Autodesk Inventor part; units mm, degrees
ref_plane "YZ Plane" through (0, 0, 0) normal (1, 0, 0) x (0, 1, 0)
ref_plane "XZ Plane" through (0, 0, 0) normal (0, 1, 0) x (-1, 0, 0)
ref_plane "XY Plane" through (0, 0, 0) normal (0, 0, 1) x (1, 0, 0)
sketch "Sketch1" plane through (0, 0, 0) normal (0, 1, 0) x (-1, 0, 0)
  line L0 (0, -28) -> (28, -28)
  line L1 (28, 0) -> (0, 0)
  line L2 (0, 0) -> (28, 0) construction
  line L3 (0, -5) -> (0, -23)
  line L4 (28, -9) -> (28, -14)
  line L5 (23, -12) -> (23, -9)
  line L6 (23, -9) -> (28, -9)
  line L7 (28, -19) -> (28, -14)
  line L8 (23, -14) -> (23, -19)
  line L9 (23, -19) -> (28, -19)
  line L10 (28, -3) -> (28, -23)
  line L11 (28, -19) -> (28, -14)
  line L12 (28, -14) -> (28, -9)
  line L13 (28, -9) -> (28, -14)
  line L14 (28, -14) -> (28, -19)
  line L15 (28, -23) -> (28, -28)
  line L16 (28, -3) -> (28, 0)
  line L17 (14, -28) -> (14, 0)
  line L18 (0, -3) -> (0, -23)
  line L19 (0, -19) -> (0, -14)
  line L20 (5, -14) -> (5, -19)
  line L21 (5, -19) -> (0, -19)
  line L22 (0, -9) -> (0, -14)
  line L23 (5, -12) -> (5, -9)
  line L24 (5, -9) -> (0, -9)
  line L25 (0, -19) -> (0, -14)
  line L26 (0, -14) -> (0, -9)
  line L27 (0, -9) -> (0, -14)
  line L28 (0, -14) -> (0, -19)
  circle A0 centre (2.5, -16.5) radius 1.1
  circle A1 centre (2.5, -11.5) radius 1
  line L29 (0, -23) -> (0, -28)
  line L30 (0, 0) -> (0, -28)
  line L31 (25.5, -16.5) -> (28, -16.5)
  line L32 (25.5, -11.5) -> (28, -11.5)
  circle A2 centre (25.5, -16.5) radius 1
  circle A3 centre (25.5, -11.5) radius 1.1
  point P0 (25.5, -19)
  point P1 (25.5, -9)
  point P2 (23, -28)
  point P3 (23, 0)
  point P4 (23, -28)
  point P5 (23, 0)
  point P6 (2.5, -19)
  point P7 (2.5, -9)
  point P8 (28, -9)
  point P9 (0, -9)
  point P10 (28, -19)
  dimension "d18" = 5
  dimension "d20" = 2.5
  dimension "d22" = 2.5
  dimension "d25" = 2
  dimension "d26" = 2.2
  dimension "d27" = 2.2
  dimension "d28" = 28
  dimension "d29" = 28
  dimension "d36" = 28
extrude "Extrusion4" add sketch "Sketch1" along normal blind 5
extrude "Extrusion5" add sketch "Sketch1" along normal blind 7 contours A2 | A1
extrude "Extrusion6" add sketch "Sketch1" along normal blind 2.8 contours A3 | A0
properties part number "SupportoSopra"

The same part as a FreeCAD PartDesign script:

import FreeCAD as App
import Part
import Sketcher
from FreeCAD import Vector

doc = App.newDocument("Part")
body = doc.addObject("PartDesign::Body", "Body")

# Sketch on XZ plane
sketch1 = body.newObject("Sketcher::SketchObject", "Sketch")
sketch1.AttachmentSupport = (doc.getObject("XZ_Plane"), [""])
sketch1.MapMode = "FlatFace"
sketch1.addGeometry([
    Part.LineSegment(Vector(0, -28, 0), Vector(-28, -28, 0)),  # 0
    Part.LineSegment(Vector(-28, -28, 0), Vector(-28, -16.5, 0)),  # 1
    Part.LineSegment(Vector(-28, -16.5, 0), Vector(-28, -11.5, 0)),  # 2
    Part.LineSegment(Vector(-28, -11.5, 0), Vector(-28, 0, 0)),  # 3
    Part.LineSegment(Vector(-28, 0, 0), Vector(0, 0, 0)),  # 4
    Part.LineSegment(Vector(0, 0, 0), Vector(0, -28, 0)),  # 5
    Part.Circle(Vector(-2.5, -16.5, 0), Vector(0, 0, 1), 1.1),  # 6
    Part.Circle(Vector(-2.5, -11.5, 0), Vector(0, 0, 1), 1),  # 7
    Part.Circle(Vector(-25.5, -16.5, 0), Vector(0, 0, 1), 1),  # 8
    Part.Circle(Vector(-25.5, -11.5, 0), Vector(0, 0, 1), 1.1),  # 9
], False)
sketch1.addConstraint([
    Sketcher.Constraint("Coincident", 0, 2, 1, 1),
    Sketcher.Constraint("Coincident", 1, 2, 2, 1),
    Sketcher.Constraint("Coincident", 2, 2, 3, 1),
    Sketcher.Constraint("Coincident", 3, 2, 4, 1),
    Sketcher.Constraint("Coincident", 4, 2, 5, 1),
    Sketcher.Constraint("Coincident", 5, 2, 0, 1),
    Sketcher.Constraint("Horizontal", 0),
    Sketcher.Constraint("Vertical", 1),
    Sketcher.Constraint("Vertical", 2),
    Sketcher.Constraint("Vertical", 3),
    Sketcher.Constraint("Horizontal", 4),
    Sketcher.Constraint("Vertical", 5),
    Sketcher.Constraint("Coincident", 4, 2, -1, 1),
    Sketcher.Constraint("Equal", 7, 8),
    Sketcher.Constraint("Equal", 6, 9),
    Sketcher.Constraint("Horizontal", 6, 3, 8, 3),
    Sketcher.Constraint("Horizontal", 7, 3, 9, 3),
    Sketcher.Constraint("Horizontal", 8, 3, 1, 2),
    Sketcher.Constraint("Horizontal", 9, 3, 2, 2),
    Sketcher.Constraint("Vertical", 6, 3, 7, 3),
    Sketcher.Constraint("Vertical", 8, 3, 9, 3),
    Sketcher.Constraint("Equal", 1, 3),
    Sketcher.Constraint("Equal", 4, 5),
    Sketcher.Constraint("Diameter", 7, 2.0),
    Sketcher.Constraint("Diameter", 6, 2.2),
    Sketcher.Constraint("DistanceX", 0, 2, 0, 1, 28.0),
    Sketcher.Constraint("DistanceY", 2, 1, 2, 2, 5.0),
    Sketcher.Constraint("DistanceX", 6, 3, -1, 1, 2.5),
    Sketcher.Constraint("DistanceX", 0, 2, 8, 3, 2.5),
])
pad1 = body.newObject("PartDesign::Pad", "Pad")
pad1.Profile = sketch1
pad1.Length = 5
pad1.Reversed = True

# Sketch on XZ plane
sketch2 = body.newObject("Sketcher::SketchObject", "Sketch001")
sketch2.AttachmentSupport = (doc.getObject("XZ_Plane"), [""])
sketch2.MapMode = "FlatFace"
sketch2.addGeometry([
    Part.Circle(Vector(-25.5, -16.5, 0), Vector(0, 0, 1), 1),
    Part.Circle(Vector(-2.5, -11.5, 0), Vector(0, 0, 1), 1),
], False)
sketch2.addConstraint([
    Sketcher.Constraint("Equal", 0, 1),
    Sketcher.Constraint("Diameter", 0, 2.0),
    Sketcher.Constraint("DistanceY", 0, 3, 1, 3, 5.0),
    Sketcher.Constraint("DistanceX", 1, 3, -1, 1, 2.5),
    Sketcher.Constraint("DistanceX", 0, 3, 1, 3, 23.0),
    Sketcher.Constraint("DistanceY", 0, 3, -1, 1, 16.5),
])
pad2 = body.newObject("PartDesign::Pad", "Pad001")
pad2.Profile = sketch2
pad2.Length = 7
pad2.Reversed = True

# Sketch on XZ plane
sketch3 = body.newObject("Sketcher::SketchObject", "Sketch002")
sketch3.AttachmentSupport = (doc.getObject("XZ_Plane"), [""])
sketch3.MapMode = "FlatFace"
sketch3.addGeometry([
    Part.Circle(Vector(-25.5, -11.5, 0), Vector(0, 0, 1), 1.1),
    Part.Circle(Vector(-2.5, -16.5, 0), Vector(0, 0, 1), 1.1),
], False)
sketch3.addConstraint([
    Sketcher.Constraint("Equal", 0, 1),
    Sketcher.Constraint("Diameter", 0, 2.2),
    Sketcher.Constraint("DistanceY", 1, 3, 0, 3, 5.0),
    Sketcher.Constraint("DistanceX", 1, 3, -1, 1, 2.5),
    Sketcher.Constraint("DistanceX", 0, 3, 1, 3, 23.0),
    Sketcher.Constraint("DistanceY", 0, 3, -1, 1, 11.5),
])
pad3 = body.newObject("PartDesign::Pad", "Pad002")
pad3.Profile = sketch3
pad3.Length = 2.8
pad3.Reversed = True

doc.recompute()
